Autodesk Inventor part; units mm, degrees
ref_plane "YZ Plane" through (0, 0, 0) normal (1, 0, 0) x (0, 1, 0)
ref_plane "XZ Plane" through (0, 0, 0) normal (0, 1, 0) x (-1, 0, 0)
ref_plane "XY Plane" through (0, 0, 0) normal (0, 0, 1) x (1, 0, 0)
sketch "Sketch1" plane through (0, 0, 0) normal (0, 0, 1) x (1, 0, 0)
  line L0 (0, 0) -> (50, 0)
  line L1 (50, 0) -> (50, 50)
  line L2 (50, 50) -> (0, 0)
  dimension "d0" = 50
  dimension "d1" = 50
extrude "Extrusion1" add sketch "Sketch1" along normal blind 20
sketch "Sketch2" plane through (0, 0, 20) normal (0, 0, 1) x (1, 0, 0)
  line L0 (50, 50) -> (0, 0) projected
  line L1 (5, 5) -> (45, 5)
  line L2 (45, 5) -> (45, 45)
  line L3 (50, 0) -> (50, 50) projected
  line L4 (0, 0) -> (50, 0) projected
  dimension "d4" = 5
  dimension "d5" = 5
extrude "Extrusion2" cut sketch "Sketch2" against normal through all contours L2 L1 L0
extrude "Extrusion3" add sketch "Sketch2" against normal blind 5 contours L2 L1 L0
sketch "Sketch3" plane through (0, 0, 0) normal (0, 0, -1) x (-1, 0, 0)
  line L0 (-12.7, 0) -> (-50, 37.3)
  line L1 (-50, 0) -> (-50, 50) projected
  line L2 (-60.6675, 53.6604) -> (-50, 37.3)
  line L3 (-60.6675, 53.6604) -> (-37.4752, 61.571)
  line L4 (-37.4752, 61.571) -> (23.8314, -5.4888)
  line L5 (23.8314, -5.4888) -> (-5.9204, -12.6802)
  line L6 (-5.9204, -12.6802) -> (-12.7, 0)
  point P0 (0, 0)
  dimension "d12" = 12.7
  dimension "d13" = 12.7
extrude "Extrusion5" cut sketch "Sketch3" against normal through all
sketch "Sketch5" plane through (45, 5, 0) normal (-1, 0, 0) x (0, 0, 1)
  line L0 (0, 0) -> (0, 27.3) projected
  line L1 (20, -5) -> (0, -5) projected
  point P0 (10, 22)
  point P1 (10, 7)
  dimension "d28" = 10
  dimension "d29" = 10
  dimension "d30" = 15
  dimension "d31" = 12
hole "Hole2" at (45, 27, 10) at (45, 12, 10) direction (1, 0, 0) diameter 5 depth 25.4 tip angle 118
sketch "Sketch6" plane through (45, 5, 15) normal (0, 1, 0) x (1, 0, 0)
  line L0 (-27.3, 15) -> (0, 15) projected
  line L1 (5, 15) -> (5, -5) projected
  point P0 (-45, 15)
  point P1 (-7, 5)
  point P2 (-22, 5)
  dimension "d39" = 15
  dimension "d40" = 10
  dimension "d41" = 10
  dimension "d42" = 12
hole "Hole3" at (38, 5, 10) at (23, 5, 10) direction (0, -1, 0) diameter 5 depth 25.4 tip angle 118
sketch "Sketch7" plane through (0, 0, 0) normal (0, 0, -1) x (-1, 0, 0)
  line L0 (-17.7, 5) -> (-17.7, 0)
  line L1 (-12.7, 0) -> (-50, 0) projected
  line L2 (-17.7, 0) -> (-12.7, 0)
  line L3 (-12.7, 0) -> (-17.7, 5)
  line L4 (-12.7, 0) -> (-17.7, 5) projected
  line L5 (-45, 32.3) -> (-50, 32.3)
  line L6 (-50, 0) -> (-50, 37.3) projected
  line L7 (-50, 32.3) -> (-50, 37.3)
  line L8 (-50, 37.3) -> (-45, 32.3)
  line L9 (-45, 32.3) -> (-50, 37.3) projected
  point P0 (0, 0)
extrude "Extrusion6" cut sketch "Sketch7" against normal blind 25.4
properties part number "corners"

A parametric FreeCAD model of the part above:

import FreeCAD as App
import Part
import Sketcher

V = App.Vector
Q = App.Units.Quantity

doc = App.newDocument("Part")
params = doc.addObject("Spreadsheet::Sheet", "Params")
for row, (alias, value) in enumerate([
    ("sketch1_width", "50 mm"),
    ("pad1_length", "20 mm"),
    ("sketch2_width", "40 mm"),
    ("sketch3_width", "40 mm"),
    ("pad2_length", "5 mm"),
    ("sketch4_length", "90.8599 mm"),
    ("sketch5_diameter", "5 mm"),
    ("hole_diameter", "5 mm"),
    ("hole_depth", "25.4 mm"),
    ("sketch6_diameter", "5 mm"),
    ("hole2_diameter", "5 mm"),
    ("hole2_depth", "25.4 mm"),
    ("sketch7_width", "5 mm"),
    ("pocket3_length", "25.4 mm"),
], start=1):
    params.set(f"A{row}", alias)
    params.set(f"B{row}", "=" + value)
    params.setAlias(f"B{row}", alias)

body = doc.addObject("PartDesign::Body", "Body")

sketch1 = body.newObject("Sketcher::SketchObject", "Sketch")
sketch1.AttachmentSupport = (doc.getObject("XY_Plane"), [""])
sketch1.MapMode = "FlatFace"
sketch1.addGeometry([
    Part.LineSegment(V(50, 50, 0), V(0, 0, 0)),
    Part.LineSegment(V(0, 0, 0), V(50, 0, 0)),
    Part.LineSegment(V(50, 0, 0), V(50, 50, 0)),
], False)
sketch1.addConstraint([
    Sketcher.Constraint("Coincident", 0, 2, 1, 1),
    Sketcher.Constraint("Coincident", 1, 2, 2, 1),
    Sketcher.Constraint("Coincident", 2, 2, 0, 1),
    Sketcher.Constraint("Horizontal", 1),
    Sketcher.Constraint("Vertical", 2),
    Sketcher.Constraint("Coincident", 0, 2, -1, 1),
    Sketcher.Constraint("Equal", 1, 2),
    Sketcher.Constraint("DistanceX", 1, 1, 1, 2, Q("50 mm")),
])
sketch1.setExpression("Constraints[7]", "Params.sketch1_width")
pad1 = body.newObject("PartDesign::Pad", "Pad")
pad1.Profile = sketch1
pad1.setExpression("Length", "Params.pad1_length")

sketch2 = body.newObject("Sketcher::SketchObject", "Sketch001")
sketch2.AttachmentSupport = (doc.getObject("XY_Plane"), [""])
sketch2.MapMode = "FlatFace"
sketch2.AttachmentOffset = App.Placement(V(0, 0, 20), App.Rotation())
sketch2.addGeometry([
    Part.LineSegment(V(45, 5, 0), V(45, 45, 0)),
    Part.LineSegment(V(45, 45, 0), V(5, 5, 0)),
    Part.LineSegment(V(5, 5, 0), V(45, 5, 0)),
], False)
sketch2.addConstraint([
    Sketcher.Constraint("Coincident", 0, 2, 1, 1),
    Sketcher.Constraint("Coincident", 1, 2, 2, 1),
    Sketcher.Constraint("Coincident", 2, 2, 0, 1),
    Sketcher.Constraint("Vertical", 0),
    Sketcher.Constraint("Horizontal", 2),
    Sketcher.Constraint("Equal", 2, 0),
    Sketcher.Constraint("DistanceX", -1, 1, 1, 2, Q("5 mm")),
    Sketcher.Constraint("DistanceY", -1, 1, 1, 2, Q("5 mm")),
    Sketcher.Constraint("DistanceX", 2, 1, 2, 2, Q("40 mm")),
])
sketch2.setExpression("Constraints[8]", "Params.sketch2_width")
pocket1 = body.newObject("PartDesign::Pocket", "Pocket")
pocket1.Profile = sketch2
pocket1.Type = "ThroughAll"

sketch3 = body.newObject("Sketcher::SketchObject", "Sketch002")
sketch3.AttachmentSupport = (doc.getObject("XY_Plane"), [""])
sketch3.MapMode = "FlatFace"
sketch3.AttachmentOffset = App.Placement(V(0, 0, 20), App.Rotation())
sketch3.addGeometry([
    Part.LineSegment(V(45, 5, 0), V(45, 45, 0)),
    Part.LineSegment(V(45, 45, 0), V(5, 5, 0)),
    Part.LineSegment(V(5, 5, 0), V(45, 5, 0)),
], False)
sketch3.addConstraint([
    Sketcher.Constraint("Coincident", 0, 2, 1, 1),
    Sketcher.Constraint("Coincident", 1, 2, 2, 1),
    Sketcher.Constraint("Coincident", 2, 2, 0, 1),
    Sketcher.Constraint("Vertical", 0),
    Sketcher.Constraint("Horizontal", 2),
    Sketcher.Constraint("Equal", 2, 0),
    Sketcher.Constraint("DistanceX", -1, 1, 1, 2, Q("5 mm")),
    Sketcher.Constraint("DistanceY", -1, 1, 1, 2, Q("5 mm")),
    Sketcher.Constraint("DistanceX", 2, 1, 2, 2, Q("40 mm")),
])
sketch3.setExpression("Constraints[8]", "Params.sketch3_width")
pad2 = body.newObject("PartDesign::Pad", "Pad001")
pad2.Profile = sketch3
pad2.setExpression("Length", "Params.pad2_length")
pad2.Reversed = True

sketch4 = body.newObject("Sketcher::SketchObject", "Sketch003")
sketch4.AttachmentSupport = (doc.getObject("XY_Plane"), [""])
sketch4.MapMode = "FlatFace"
sketch4.addGeometry([
    Part.LineSegment(V(50, 37, 0), V(13, 0, 0)),
    Part.LineSegment(V(13, 0, 0), V(6, -13, 0)),
    Part.LineSegment(V(6, -13, 0), V(-24, -5, 0)),
    Part.LineSegment(V(-24, -5, 0), V(37, 62, 0)),
    Part.LineSegment(V(37, 62, 0), V(61, 54, 0)),
    Part.LineSegment(V(61, 54, 0), V(50, 37, 0)),
], False)
sketch4.addConstraint([
    Sketcher.Constraint("Coincident", 0, 2, 1, 1),
    Sketcher.Constraint("Coincident", 1, 2, 2, 1),
    Sketcher.Constraint("Coincident", 2, 2, 3, 1),
    Sketcher.Constraint("Coincident", 3, 2, 4, 1),
    Sketcher.Constraint("Coincident", 4, 2, 5, 1),
    Sketcher.Constraint("Coincident", 5, 2, 0, 1),
    Sketcher.Constraint("PointOnObject", 0, 2, -1),
    Sketcher.Constraint("DistanceX", -1, 1, 0, 2, Q("12.7 mm")),
    Sketcher.Constraint("Angle", 0, Q("-135 deg")),
    Sketcher.Constraint("DistanceX", -1, 1, 5, 2, Q("50 mm")),
    Sketcher.Constraint("Distance", 5, Q("19.531 mm")),
    Sketcher.Constraint("DistanceY", -1, 1, 3, 2, Q("61.571 mm")),
    Sketcher.Constraint("DistanceX", 1, 2, 4, 2, Q("54.747 mm")),
    Sketcher.Constraint("DistanceX", 2, 2, 4, 2, Q("84.499 mm")),
    Sketcher.Constraint("Distance", 1, Q("14.3788 mm")),
    Sketcher.Constraint("Distance", 2, Q("30.6086 mm")),
    Sketcher.Constraint("Distance", 3, Q("90.8599 mm")),
    Sketcher.Constraint("Distance", 4, Q("24.5043 mm")),
])
sketch4.setExpression("Constraints[16]", "Params.sketch4_length")
pocket2 = body.newObject("PartDesign::Pocket", "Pocket001")
pocket2.Profile = sketch4
pocket2.Type = "ThroughAll"
pocket2.Reversed = True

sketch5 = body.newObject("Sketcher::SketchObject", "Sketch004")
sketch5.AttachmentSupport = (doc.getObject("YZ_Plane"), [""])
sketch5.MapMode = "FlatFace"
sketch5.AttachmentOffset = App.Placement(V(0, 0, 45), App.Rotation())
sketch5.addGeometry([
    Part.Circle(V(27, 10, 0), V(0, 0, 1), 2.5),
    Part.Circle(V(12, 10, 0), V(0, 0, 1), 2.5),
], False)
sketch5.addConstraint([
    Sketcher.Constraint("Equal", 0, 1),
    Sketcher.Constraint("Horizontal", 0, 3, 1, 3),
    Sketcher.Constraint("Diameter", 0, Q("5 mm")),
    Sketcher.Constraint("DistanceX", -1, 1, 0, 3, Q("27 mm")),
    Sketcher.Constraint("DistanceY", -1, 1, 0, 3, Q("10 mm")),
    Sketcher.Constraint("DistanceX", -1, 1, 1, 3, Q("12 mm")),
])
sketch5.setExpression("Constraints[2]", "Params.sketch5_diameter")
doc.recompute()
hole = body.newObject("PartDesign::Hole", "Hole")
hole.Profile = sketch5
hole.ThreadType = "None"
hole.setExpression("Diameter", "Params.hole_diameter")
hole.DepthType = "Dimension"
hole.setExpression("Depth", "Params.hole_depth")
hole.DrillPoint = "Angled"
hole.DrillPointAngle = 118
hole.Reversed = True

sketch6 = body.newObject("Sketcher::SketchObject", "Sketch005")
sketch6.AttachmentSupport = (doc.getObject("XZ_Plane"), [""])
sketch6.MapMode = "FlatFace"
sketch6.AttachmentOffset = App.Placement(V(0, 0, -5), App.Rotation())
sketch6.addGeometry([
    Part.Circle(V(38, 10, 0), V(0, 0, 1), 2.5),
    Part.Circle(V(23, 10, 0), V(0, 0, 1), 2.5),
], False)
sketch6.addConstraint([
    Sketcher.Constraint("Equal", 0, 1),
    Sketcher.Constraint("Horizontal", 0, 3, 1, 3),
    Sketcher.Constraint("Diameter", 0, Q("5 mm")),
    Sketcher.Constraint("DistanceX", -1, 1, 0, 3, Q("38 mm")),
    Sketcher.Constraint("DistanceY", -1, 1, 0, 3, Q("10 mm")),
    Sketcher.Constraint("DistanceX", -1, 1, 1, 3, Q("23 mm")),
])
sketch6.setExpression("Constraints[2]", "Params.sketch6_diameter")
doc.recompute()
hole2 = body.newObject("PartDesign::Hole", "Hole001")
hole2.Profile = sketch6
hole2.ThreadType = "None"
hole2.setExpression("Diameter", "Params.hole2_diameter")
hole2.DepthType = "Dimension"
hole2.setExpression("Depth", "Params.hole2_depth")
hole2.DrillPoint = "Angled"
hole2.DrillPointAngle = 118
hole2.Reversed = True

sketch7 = body.newObject("Sketcher::SketchObject", "Sketch006")
sketch7.AttachmentSupport = (doc.getObject("XY_Plane"), [""])
sketch7.MapMode = "FlatFace"
sketch7.addGeometry([
    Part.LineSegment(V(13, 0, 0), V(18, 5, 0)),
    Part.LineSegment(V(18, 5, 0), V(18, 0, 0)),
    Part.LineSegment(V(18, 0, 0), V(13, 0, 0)),
    Part.LineSegment(V(50, 37, 0), V(50, 32, 0)),
    Part.LineSegment(V(50, 32, 0), V(45, 32, 0)),
    Part.LineSegment(V(45, 32, 0), V(50, 37, 0)),
], False)
sketch7.addConstraint([
    Sketcher.Constraint("Coincident", 0, 2, 1, 1),
    Sketcher.Constraint("Coincident", 1, 2, 2, 1),
    Sketcher.Constraint("Coincident", 2, 2, 0, 1),
    Sketcher.Constraint("Coincident", 3, 2, 4, 1),
    Sketcher.Constraint("Coincident", 4, 2, 5, 1),
    Sketcher.Constraint("Coincident", 5, 2, 3, 1),
    Sketcher.Constraint("Vertical", 1),
    Sketcher.Constraint("Horizontal", 2),
    Sketcher.Constraint("Vertical", 3),
    Sketcher.Constraint("Horizontal", 4),
    Sketcher.Constraint("PointOnObject", 1, 2, -1),
    Sketcher.Constraint("Parallel", 0, 5),
    Sketcher.Constraint("Equal", 2, 4),
    Sketcher.Constraint("Equal", 4, 1),
    Sketcher.Constraint("DistanceX", 2, 2, 2, 1, Q("5 mm")),
    Sketcher.Constraint("DistanceX", -1, 1, 3, 2, Q("50 mm")),
    Sketcher.Constraint("DistanceX", -1, 1, 0, 2, Q("17.7 mm")),
    Sketcher.Constraint("DistanceY", -1, 1, 3, 2, Q("32.3 mm")),
])
sketch7.setExpression("Constraints[14]", "Params.sketch7_width")
pocket3 = body.newObject("PartDesign::Pocket", "Pocket002")
pocket3.Profile = sketch7
pocket3.setExpression("Length", "Params.pocket3_length")
pocket3.Reversed = True

doc.recompute()
